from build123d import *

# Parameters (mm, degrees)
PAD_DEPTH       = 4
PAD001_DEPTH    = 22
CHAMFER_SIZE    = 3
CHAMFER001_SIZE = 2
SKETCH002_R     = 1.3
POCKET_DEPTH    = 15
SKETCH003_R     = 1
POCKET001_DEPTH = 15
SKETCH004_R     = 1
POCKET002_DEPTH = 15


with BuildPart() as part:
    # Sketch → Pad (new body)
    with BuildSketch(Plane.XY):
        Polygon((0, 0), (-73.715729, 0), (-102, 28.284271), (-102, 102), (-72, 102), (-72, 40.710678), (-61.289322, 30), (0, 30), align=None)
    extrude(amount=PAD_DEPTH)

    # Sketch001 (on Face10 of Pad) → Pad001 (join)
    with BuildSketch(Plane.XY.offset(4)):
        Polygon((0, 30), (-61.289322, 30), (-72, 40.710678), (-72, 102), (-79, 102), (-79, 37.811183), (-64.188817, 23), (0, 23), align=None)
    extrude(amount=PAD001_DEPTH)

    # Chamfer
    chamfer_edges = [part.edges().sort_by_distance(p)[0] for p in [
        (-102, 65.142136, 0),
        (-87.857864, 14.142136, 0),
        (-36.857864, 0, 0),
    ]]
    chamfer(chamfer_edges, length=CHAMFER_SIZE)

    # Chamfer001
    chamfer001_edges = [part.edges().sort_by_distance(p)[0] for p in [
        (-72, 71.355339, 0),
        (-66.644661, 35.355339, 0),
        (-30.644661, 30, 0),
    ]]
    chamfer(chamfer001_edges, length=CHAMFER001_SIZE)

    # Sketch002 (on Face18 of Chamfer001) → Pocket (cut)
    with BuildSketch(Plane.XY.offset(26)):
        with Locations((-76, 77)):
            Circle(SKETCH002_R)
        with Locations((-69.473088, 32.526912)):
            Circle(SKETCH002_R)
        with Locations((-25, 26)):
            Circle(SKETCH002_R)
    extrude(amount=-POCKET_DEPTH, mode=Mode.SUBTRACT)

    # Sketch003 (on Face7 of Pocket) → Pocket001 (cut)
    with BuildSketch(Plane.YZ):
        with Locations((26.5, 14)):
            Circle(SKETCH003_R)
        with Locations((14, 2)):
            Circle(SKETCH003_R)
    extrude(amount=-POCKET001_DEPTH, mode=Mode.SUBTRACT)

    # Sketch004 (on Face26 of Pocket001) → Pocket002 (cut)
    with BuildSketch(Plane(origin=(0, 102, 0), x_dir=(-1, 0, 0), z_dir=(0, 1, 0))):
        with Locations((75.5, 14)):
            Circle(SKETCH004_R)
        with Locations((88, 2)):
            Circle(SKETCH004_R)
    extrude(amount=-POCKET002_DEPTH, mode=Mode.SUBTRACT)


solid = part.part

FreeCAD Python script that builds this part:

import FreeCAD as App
import Part
import Sketcher

V = App.Vector


def edges_at(feature, points):
    """Names of the edges that pass closest to the given points."""
    edges = feature.Shape.Edges
    near = lambda p: min(range(len(edges)), key=lambda i: edges[i].distToShape(Part.Vertex(*p))[0])
    return sorted({f"Edge{near(p) + 1}" for p in points})

doc = App.newDocument("Part")
params = doc.addObject("Spreadsheet::Sheet", "Params")
for row, (alias, value) in enumerate([
    ("sketch1_width", "30 mm"),
    ("sketch1_length", "40 mm"),
    ("pad1_length", "4 mm"),
    ("sketch2_width", "7 mm"),
    ("pad2_length", "22 mm"),
    ("chamfer_size", "3 mm"),
    ("chamfer2_size", "2 mm"),
    ("sketch3_diameter", "2.6 mm"),
    ("pocket1_length", "15 mm"),
    ("sketch4_diameter", "2 mm"),
    ("pocket2_length", "15 mm"),
    ("sketch5_diameter", "2 mm"),
    ("pocket3_length", "15 mm"),
], start=1):
    params.set(f"A{row}", alias)
    params.set(f"B{row}", "=" + value)
    params.setAlias(f"B{row}", alias)

body = doc.addObject("PartDesign::Body", "Body")

# Sketch on XY plane
sketch1 = body.newObject("Sketcher::SketchObject", "Sketch")
sketch1.AttachmentSupport = (doc.getObject("XY_Plane"), [""])
sketch1.MapMode = "FlatFace"
sketch1.addGeometry(Part.LineSegment(V(-74, 0, 0), V(0, 0, 0)), False)
sketch1.addGeometry(Part.LineSegment(V(0, 0, 0), V(0, 30, 0)), False)
sketch1.addGeometry(Part.LineSegment(V(0, 30, 0), V(-61, 30, 0)), False)
sketch1.addGeometry(Part.LineSegment(V(-61, 30, 0), V(-72, 41, 0)), False)
sketch1.addGeometry(Part.LineSegment(V(-72, 41, 0), V(-72, 102, 0)), False)
sketch1.addGeometry(Part.LineSegment(V(-72, 102, 0), V(-102, 102, 0)), False)
sketch1.addGeometry(Part.LineSegment(V(-102, 102, 0), V(-102, 28, 0)), False)
sketch1.addGeometry(Part.LineSegment(V(-102, 28, 0), V(-74, 0, 0)), False)
sketch1.addConstraint(Sketcher.Constraint("Coincident", 0, 2, 1, 1))
sketch1.addConstraint(Sketcher.Constraint("Coincident", 1, 2, 2, 1))
sketch1.addConstraint(Sketcher.Constraint("Coincident", 2, 2, 3, 1))
sketch1.addConstraint(Sketcher.Constraint("Coincident", 3, 2, 4, 1))
sketch1.addConstraint(Sketcher.Constraint("Coincident", 4, 2, 5, 1))
sketch1.addConstraint(Sketcher.Constraint("Coincident", 5, 2, 6, 1))
sketch1.addConstraint(Sketcher.Constraint("Coincident", 6, 2, 7, 1))
sketch1.addConstraint(Sketcher.Constraint("Coincident", 7, 2, 0, 1))
sketch1.addConstraint(Sketcher.Constraint("Horizontal", 0))
sketch1.addConstraint(Sketcher.Constraint("Vertical", 1))
sketch1.addConstraint(Sketcher.Constraint("Horizontal", 2))
sketch1.addConstraint(Sketcher.Constraint("Vertical", 4))
sketch1.addConstraint(Sketcher.Constraint("Horizontal", 5))
sketch1.addConstraint(Sketcher.Constraint("Vertical", 6))
sketch1.addConstraint(Sketcher.Constraint("Coincident", 0, 2, -1, 1))
sketch1.addConstraint(Sketcher.Constraint("Parallel", 3, 7))
sketch1.addConstraint(Sketcher.Constraint("Equal", 5, 1))
sketch1.addConstraint(Sketcher.Constraint("Equal", 2, 4))
sketch1.addConstraint(Sketcher.Constraint("Equal", 0, 6))
sketch1.addConstraint(Sketcher.Constraint("DistanceX", 5, 2, 5, 1, 30.0))
sketch1.addConstraint(Sketcher.Constraint("Distance", 7, 40.0))
sketch1.addConstraint(Sketcher.Constraint("DistanceX", 3, 2, -1, 1, 72.0))
sketch1.addConstraint(Sketcher.Constraint("DistanceX", 2, 2, 2, 1, 61.289322))
sketch1.setExpression("Constraints[19]", "Params.sketch1_width")
sketch1.setExpression("Constraints[20]", "Params.sketch1_length")
pad1 = body.newObject("PartDesign::Pad", "Pad")
pad1.Profile = sketch1
pad1.setExpression("Length", "Params.pad1_length")

# Sketch on XY plane
sketch2 = body.newObject("Sketcher::SketchObject", "Sketch001")
sketch2.AttachmentSupport = (doc.getObject("XY_Plane"), [""])
sketch2.MapMode = "FlatFace"
sketch2.AttachmentOffset = App.Placement(V(0, 0, 4), App.Rotation())
sketch2.addGeometry(Part.LineSegment(V(0, 30, 0), V(-61, 30, 0)), False)
sketch2.addGeometry(Part.LineSegment(V(-61, 30, 0), V(-72, 41, 0)), False)
sketch2.addGeometry(Part.LineSegment(V(-72, 41, 0), V(-72, 102, 0)), False)
sketch2.addGeometry(Part.LineSegment(V(-72, 102, 0), V(-79, 102, 0)), False)
sketch2.addGeometry(Part.LineSegment(V(-79, 102, 0), V(-79, 38, 0)), False)
sketch2.addGeometry(Part.LineSegment(V(-79, 38, 0), V(-64, 23, 0)), False)
sketch2.addGeometry(Part.LineSegment(V(-64, 23, 0), V(0, 23, 0)), False)
sketch2.addGeometry(Part.LineSegment(V(0, 23, 0), V(0, 30, 0)), False)
sketch2.addConstraint(Sketcher.Constraint("Coincident", 0, 2, 1, 1))
sketch2.addConstraint(Sketcher.Constraint("Coincident", 1, 2, 2, 1))
sketch2.addConstraint(Sketcher.Constraint("Coincident", 2, 2, 3, 1))
sketch2.addConstraint(Sketcher.Constraint("Coincident", 3, 2, 4, 1))
sketch2.addConstraint(Sketcher.Constraint("Coincident", 4, 2, 5, 1))
sketch2.addConstraint(Sketcher.Constraint("Coincident", 5, 2, 6, 1))
sketch2.addConstraint(Sketcher.Constraint("Coincident", 6, 2, 7, 1))
sketch2.addConstraint(Sketcher.Constraint("Coincident", 7, 2, 0, 1))
sketch2.addConstraint(Sketcher.Constraint("Horizontal", 0))
sketch2.addConstraint(Sketcher.Constraint("Vertical", 2))
sketch2.addConstraint(Sketcher.Constraint("Horizontal", 3))
sketch2.addConstraint(Sketcher.Constraint("Vertical", 4))
sketch2.addConstraint(Sketcher.Constraint("Horizontal", 6))
sketch2.addConstraint(Sketcher.Constraint("Vertical", 7))
sketch2.addConstraint(Sketcher.Constraint("PointOnObject", 6, 2, -2))
sketch2.addConstraint(Sketcher.Constraint("Parallel", 1, 5))
sketch2.addConstraint(Sketcher.Constraint("Equal", 0, 2))
sketch2.addConstraint(Sketcher.Constraint("Equal", 6, 4))
sketch2.addConstraint(Sketcher.Constraint("Equal", 3, 7))
sketch2.addConstraint(Sketcher.Constraint("DistanceX", 3, 2, 3, 1, 7.0))
sketch2.addConstraint(Sketcher.Constraint("DistanceY", -1, 1, 0, 2, 30.0))
sketch2.addConstraint(Sketcher.Constraint("DistanceX", 1, 2, -1, 1, 72.0))
sketch2.addConstraint(Sketcher.Constraint("DistanceX", 0, 2, 0, 1, 61.289322))
sketch2.addConstraint(Sketcher.Constraint("DistanceX", 6, 1, 6, 2, 64.188817))
sketch2.setExpression("Constraints[19]", "Params.sketch2_width")
pad2 = body.newObject("PartDesign::Pad", "Pad001")
pad2.Profile = sketch2
pad2.setExpression("Length", "Params.pad2_length")
doc.recompute()

chamfer = body.newObject("PartDesign::Chamfer", "Chamfer")
chamfer.Base = (pad2, edges_at(pad2, [(-102, 65.142, 0), (-87.858, 14.142, 0), (-36.858, 0, 0)]))
chamfer.setExpression("Size", "Params.chamfer_size")
doc.recompute()

chamfer2 = body.newObject("PartDesign::Chamfer", "Chamfer001")
chamfer2.Base = (chamfer, edges_at(chamfer, [(-72, 71.355, 0), (-66.645, 35.355, 0), (-30.645, 30, 0)]))
chamfer2.setExpression("Size", "Params.chamfer2_size")

# Sketch on XY plane
sketch3 = body.newObject("Sketcher::SketchObject", "Sketch002")
sketch3.AttachmentSupport = (doc.getObject("XY_Plane"), [""])
sketch3.MapMode = "FlatFace"
sketch3.AttachmentOffset = App.Placement(V(0, 0, 26), App.Rotation())
sketch3.addGeometry(Part.Circle(V(-76, 77, 0), V(0, 0, 1), 1.3), False)
sketch3.addGeometry(Part.Circle(V(-69.5, 32.5, 0), V(0, 0, 1), 1.3), False)
sketch3.addGeometry(Part.Circle(V(-25, 26, 0), V(0, 0, 1), 1.3), False)
sketch3.addConstraint(Sketcher.Constraint("Equal", 0, 1))
sketch3.addConstraint(Sketcher.Constraint("Equal", 1, 2))
sketch3.addConstraint(Sketcher.Constraint("Diameter", 0, 2.6))
sketch3.addConstraint(Sketcher.Constraint("DistanceX", 0, 3, -1, 1, 76.0))
sketch3.addConstraint(Sketcher.Constraint("DistanceY", -1, 1, 0, 3, 77.0))
sketch3.addConstraint(Sketcher.Constraint("DistanceX", 2, 3, -1, 1, 25.0))
sketch3.addConstraint(Sketcher.Constraint("DistanceY", -1, 1, 2, 3, 26.0))
sketch3.addConstraint(Sketcher.Constraint("DistanceX", 1, 3, -1, 1, 69.473088))
sketch3.addConstraint(Sketcher.Constraint("DistanceY", -1, 1, 1, 3, 32.526912))
sketch3.setExpression("Constraints[2]", "Params.sketch3_diameter")
pocket1 = body.newObject("PartDesign::Pocket", "Pocket")
pocket1.Profile = sketch3
pocket1.setExpression("Length", "Params.pocket1_length")

# Sketch on YZ plane
sketch4 = body.newObject("Sketcher::SketchObject", "Sketch003")
sketch4.AttachmentSupport = (doc.getObject("YZ_Plane"), [""])
sketch4.MapMode = "FlatFace"
sketch4.addGeometry(Part.Circle(V(26.5, 14, 0), V(0, 0, 1), 1), False)
sketch4.addGeometry(Part.Circle(V(14, 2, 0), V(0, 0, 1), 1), False)
sketch4.addConstraint(Sketcher.Constraint("Equal", 0, 1))
sketch4.addConstraint(Sketcher.Constraint("Diameter", 0, 2.0))
sketch4.addConstraint(Sketcher.Constraint("DistanceY", -1, 1, 0, 3, 14.0))
sketch4.addConstraint(Sketcher.Constraint("DistanceX", -1, 1, 1, 3, 14.0))
sketch4.addConstraint(Sketcher.Constraint("DistanceY", -1, 1, 1, 3, 2.0))
sketch4.addConstraint(Sketcher.Constraint("DistanceX", -1, 1, 0, 3, 26.5))
sketch4.setExpression("Constraints[1]", "Params.sketch4_diameter")
pocket2 = body.newObject("PartDesign::Pocket", "Pocket001")
pocket2.Profile = sketch4
pocket2.setExpression("Length", "Params.pocket2_length")

# Sketch on XZ plane
sketch5 = body.newObject("Sketcher::SketchObject", "Sketch004")
sketch5.AttachmentSupport = (doc.getObject("XZ_Plane"), [""])
sketch5.MapMode = "FlatFace"
sketch5.AttachmentOffset = App.Placement(V(0, 0, -102), App.Rotation())
sketch5.addGeometry(Part.Circle(V(-75.5, 14, 0), V(0, 0, 1), 1), False)
sketch5.addGeometry(Part.Circle(V(-88, 2, 0), V(0, 0, 1), 1), False)
sketch5.addConstraint(Sketcher.Constraint("Equal", 0, 1))
sketch5.addConstraint(Sketcher.Constraint("Diameter", 0, 2.0))
sketch5.addConstraint(Sketcher.Constraint("DistanceY", -1, 1, 0, 3, 14.0))
sketch5.addConstraint(Sketcher.Constraint("DistanceX", 1, 3, -1, 1, 88.0))
sketch5.addConstraint(Sketcher.Constraint("DistanceY", -1, 1, 1, 3, 2.0))
sketch5.addConstraint(Sketcher.Constraint("DistanceX", 0, 3, -1, 1, 75.5))
sketch5.setExpression("Constraints[1]", "Params.sketch5_diameter")
pocket3 = body.newObject("PartDesign::Pocket", "Pocket002")
pocket3.Profile = sketch5
pocket3.setExpression("Length", "Params.pocket3_length")
pocket3.Reversed = True

doc.recompute()
